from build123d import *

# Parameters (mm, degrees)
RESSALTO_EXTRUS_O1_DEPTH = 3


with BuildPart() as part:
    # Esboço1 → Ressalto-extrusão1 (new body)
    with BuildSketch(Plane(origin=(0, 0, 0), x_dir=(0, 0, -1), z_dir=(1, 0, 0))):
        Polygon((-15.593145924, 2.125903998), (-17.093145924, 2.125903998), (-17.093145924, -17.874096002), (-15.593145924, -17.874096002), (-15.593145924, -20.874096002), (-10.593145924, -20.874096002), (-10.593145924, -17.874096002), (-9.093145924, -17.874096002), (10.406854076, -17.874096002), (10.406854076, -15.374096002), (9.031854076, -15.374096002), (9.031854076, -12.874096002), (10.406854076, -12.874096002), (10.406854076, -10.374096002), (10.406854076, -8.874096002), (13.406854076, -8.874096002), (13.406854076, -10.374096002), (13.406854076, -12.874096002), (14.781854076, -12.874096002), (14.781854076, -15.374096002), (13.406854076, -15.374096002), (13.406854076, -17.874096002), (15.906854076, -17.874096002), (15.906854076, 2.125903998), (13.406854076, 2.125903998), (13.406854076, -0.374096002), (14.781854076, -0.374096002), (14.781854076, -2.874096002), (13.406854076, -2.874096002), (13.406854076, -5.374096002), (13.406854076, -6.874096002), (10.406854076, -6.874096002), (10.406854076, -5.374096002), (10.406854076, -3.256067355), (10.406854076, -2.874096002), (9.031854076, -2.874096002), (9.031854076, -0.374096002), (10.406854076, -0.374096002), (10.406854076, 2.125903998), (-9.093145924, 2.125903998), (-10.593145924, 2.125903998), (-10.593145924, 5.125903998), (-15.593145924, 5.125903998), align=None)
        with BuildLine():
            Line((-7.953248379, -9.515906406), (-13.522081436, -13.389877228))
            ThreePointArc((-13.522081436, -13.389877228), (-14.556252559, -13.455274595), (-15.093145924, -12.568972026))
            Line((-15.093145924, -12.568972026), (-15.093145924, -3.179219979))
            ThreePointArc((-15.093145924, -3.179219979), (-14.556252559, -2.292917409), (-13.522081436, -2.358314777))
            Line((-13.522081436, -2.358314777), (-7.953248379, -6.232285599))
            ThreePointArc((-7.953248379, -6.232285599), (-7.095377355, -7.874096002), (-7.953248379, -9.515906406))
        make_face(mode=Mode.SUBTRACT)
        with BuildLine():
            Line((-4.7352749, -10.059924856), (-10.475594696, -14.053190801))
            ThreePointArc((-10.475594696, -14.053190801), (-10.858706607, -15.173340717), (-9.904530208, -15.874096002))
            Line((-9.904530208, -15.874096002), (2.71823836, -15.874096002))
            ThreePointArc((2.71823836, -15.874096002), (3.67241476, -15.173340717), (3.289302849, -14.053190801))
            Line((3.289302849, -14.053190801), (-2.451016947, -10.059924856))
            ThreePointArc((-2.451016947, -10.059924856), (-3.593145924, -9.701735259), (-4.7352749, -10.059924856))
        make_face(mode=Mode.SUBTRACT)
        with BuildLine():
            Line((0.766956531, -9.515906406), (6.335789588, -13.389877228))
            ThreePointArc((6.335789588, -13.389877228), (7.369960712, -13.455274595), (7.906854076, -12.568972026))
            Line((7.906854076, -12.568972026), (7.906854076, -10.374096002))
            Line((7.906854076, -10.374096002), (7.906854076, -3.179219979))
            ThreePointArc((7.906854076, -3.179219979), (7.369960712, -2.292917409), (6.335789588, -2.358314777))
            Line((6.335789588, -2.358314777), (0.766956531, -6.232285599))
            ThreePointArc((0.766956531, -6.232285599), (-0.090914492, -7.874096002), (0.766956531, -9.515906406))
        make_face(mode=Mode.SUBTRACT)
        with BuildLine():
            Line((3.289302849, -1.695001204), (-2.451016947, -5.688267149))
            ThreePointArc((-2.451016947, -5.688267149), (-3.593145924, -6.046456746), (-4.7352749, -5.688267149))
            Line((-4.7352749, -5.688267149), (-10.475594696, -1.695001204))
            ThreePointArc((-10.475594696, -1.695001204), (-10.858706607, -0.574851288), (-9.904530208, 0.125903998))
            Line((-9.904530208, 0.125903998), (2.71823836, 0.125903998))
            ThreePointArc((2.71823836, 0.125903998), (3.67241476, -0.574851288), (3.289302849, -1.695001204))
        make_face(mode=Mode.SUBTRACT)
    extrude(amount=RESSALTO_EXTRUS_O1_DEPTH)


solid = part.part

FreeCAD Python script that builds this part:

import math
import FreeCAD as App
import Part
import Sketcher

V = App.Vector


def add_polygon(sketch, points):
    """Adds a closed chain of lines whose ends are joined by coincident constraints."""
    first, n = sketch.GeometryCount, len(points)
    for a, b in zip(points, points[1:] + points[:1]):
        sketch.addGeometry(Part.LineSegment(App.Vector(*a, 0), App.Vector(*b, 0)), False)
    for i in range(n):
        sketch.addConstraint(Sketcher.Constraint("Coincident", first + i, 2, first + (i + 1) % n, 1))

doc = App.newDocument("Part")
body = doc.addObject("PartDesign::Body", "Body")

# Sketch on YZ plane
sketch1 = body.newObject("Sketcher::SketchObject", "Sketch")
sketch1.AttachmentSupport = (doc.getObject("YZ_Plane"), [""])
sketch1.MapMode = "FlatFace"
add_polygon(sketch1, [(2.1, 15.6), (2.1, 17.1), (-17.9, 17.1), (-17.9, 15.6), (-20.9, 15.6), (-20.9, 10.6), (-17.9, 10.6), (-17.9, -10.4), (-15.4, -10.4), (-15.4, -9), (-12.9, -9), (-12.9, -10.4), (-8.9, -10.4), (-8.9, -13.4), (-12.9, -13.4), (-12.9, -14.8), (-15.4, -14.8), (-15.4, -13.4), (-17.9, -13.4), (-17.9, -15.9), (2.1, -15.9), (2.1, -13.4), (-0.4, -13.4), (-0.4, -14.8), (-2.9, -14.8), (-2.9, -13.4), (-6.9, -13.4), (-6.9, -10.4), (-2.9, -10.4), (-2.9, -9), (-0.4, -9), (-0.4, -10.4), (2.1, -10.4), (2.1, 10.6), (5.1, 10.6), (5.1, 15.6)])  # lines 0-35
sketch1.addGeometry(Part.ArcOfCircle(Part.Circle(V(-7.9, 9.1, 0), V(0, 0, 1), 2), math.radians(-145), math.radians(-35)), False)  # 36
sketch1.addGeometry(Part.LineSegment(V(-9.5, 8, 0), V(-13.4, 13.5, 0)), False)  # 37
sketch1.addGeometry(Part.ArcOfCircle(Part.Circle(V(-12.6, 14.1, 0), V(0, 0, 1), 1), math.radians(90), math.radians(215)), False)  # 38
sketch1.addGeometry(Part.LineSegment(V(-12.6, 15.1, 0), V(-3.2, 15.1, 0)), False)  # 39
sketch1.addGeometry(Part.ArcOfCircle(Part.Circle(V(-3.2, 14.1, 0), V(0, 0, 1), 1), math.radians(-35), math.radians(90)), False)  # 40
sketch1.addGeometry(Part.LineSegment(V(-2.4, 13.5, 0), V(-6.2, 8, 0)), False)  # 41
sketch1.addGeometry(Part.LineSegment(V(-14.1, 10.5, 0), V(-10.1, 4.7, 0)), False)  # 42
sketch1.addGeometry(Part.ArcOfCircle(Part.Circle(V(-11.7, 3.6, 0), V(0, 0, 1), 2), math.radians(-35), math.radians(35)), False)  # 43
sketch1.addGeometry(Part.LineSegment(V(-10.1, 2.5, 0), V(-14.1, -3.3, 0)), False)  # 44
sketch1.addGeometry(Part.ArcOfCircle(Part.Circle(V(-14.9, -2.7, 0), V(0, 0, 1), 1), math.radians(180), math.radians(325)), False)  # 45
sketch1.addGeometry(Part.LineSegment(V(-15.9, -2.7, 0), V(-15.9, 9.9, 0)), False)  # 46
sketch1.addGeometry(Part.ArcOfCircle(Part.Circle(V(-14.9, 9.9, 0), V(0, 0, 1), 1), math.radians(35), math.radians(180)), False)  # 47
sketch1.addGeometry(Part.LineSegment(V(-13.4, -6.3, 0), V(-9.5, -0.8, 0)), False)  # 48
sketch1.addGeometry(Part.ArcOfCircle(Part.Circle(V(-7.9, -1.9, 0), V(0, 0, 1), 2), math.radians(35), math.radians(145)), False)  # 49
sketch1.addGeometry(Part.LineSegment(V(-6.2, -0.8, 0), V(-2.4, -6.3, 0)), False)  # 50
sketch1.addGeometry(Part.ArcOfCircle(Part.Circle(V(-3.2, -6.9, 0), V(0, 0, 1), 1), math.radians(-90), math.radians(35)), False)  # 51
sketch1.addGeometry(Part.LineSegment(V(-3.2, -7.9, 0), V(-12.6, -7.9, 0)), False)  # 52
sketch1.addGeometry(Part.ArcOfCircle(Part.Circle(V(-12.6, -6.9, 0), V(0, 0, 1), 1), math.radians(145), math.radians(270)), False)  # 53
sketch1.addGeometry(Part.ArcOfCircle(Part.Circle(V(-0.9, -2.7, 0), V(0, 0, 1), 1), math.radians(-145), math.radians(0)), False)  # 54
sketch1.addGeometry(Part.LineSegment(V(-1.7, -3.3, 0), V(-5.7, 2.5, 0)), False)  # 55
sketch1.addGeometry(Part.ArcOfCircle(Part.Circle(V(-4, 3.6, 0), V(0, 0, 1), 2), math.radians(145), math.radians(215)), False)  # 56
sketch1.addGeometry(Part.LineSegment(V(-5.7, 4.7, 0), V(-1.7, 10.5, 0)), False)  # 57
sketch1.addGeometry(Part.ArcOfCircle(Part.Circle(V(-0.9, 9.9, 0), V(0, 0, 1), 1), math.radians(0), math.radians(145)), False)  # 58
sketch1.addGeometry(Part.LineSegment(V(0.1, 9.9, 0), V(0.1, -2.7, 0)), False)  # 59
sketch1.addConstraint([
    Sketcher.Constraint("Tangent", 36, 1, 37, 1),
    Sketcher.Constraint("Tangent", 37, 2, 38, 2),
    Sketcher.Constraint("Tangent", 38, 1, 39, 1),
    Sketcher.Constraint("Tangent", 39, 2, 40, 2),
    Sketcher.Constraint("Tangent", 40, 1, 41, 1),
    Sketcher.Constraint("Tangent", 41, 2, 36, 2),
    Sketcher.Constraint("Tangent", 42, 2, 43, 2),
    Sketcher.Constraint("Tangent", 43, 1, 44, 1),
    Sketcher.Constraint("Tangent", 44, 2, 45, 2),
    Sketcher.Constraint("Tangent", 45, 1, 46, 1),
    Sketcher.Constraint("Tangent", 46, 2, 47, 2),
    Sketcher.Constraint("Tangent", 47, 1, 42, 1),
    Sketcher.Constraint("Tangent", 48, 2, 49, 2),
    Sketcher.Constraint("Tangent", 49, 1, 50, 1),
    Sketcher.Constraint("Tangent", 50, 2, 51, 2),
    Sketcher.Constraint("Tangent", 51, 1, 52, 1),
    Sketcher.Constraint("Tangent", 52, 2, 53, 2),
    Sketcher.Constraint("Tangent", 53, 1, 48, 1),
    Sketcher.Constraint("Tangent", 54, 1, 55, 1),
    Sketcher.Constraint("Tangent", 55, 2, 56, 2),
    Sketcher.Constraint("Tangent", 56, 1, 57, 1),
    Sketcher.Constraint("Tangent", 57, 2, 58, 2),
    Sketcher.Constraint("Tangent", 58, 1, 59, 1),
    Sketcher.Constraint("Tangent", 59, 2, 54, 2),
    Sketcher.Constraint("Vertical", 0),
    Sketcher.Constraint("Horizontal", 1),
    Sketcher.Constraint("Vertical", 2),
    Sketcher.Constraint("Horizontal", 3),
    Sketcher.Constraint("Vertical", 4),
    Sketcher.Constraint("Horizontal", 5),
    Sketcher.Constraint("Vertical", 6),
    Sketcher.Constraint("Horizontal", 7),
    Sketcher.Constraint("Vertical", 8),
    Sketcher.Constraint("Horizontal", 9),
    Sketcher.Constraint("Vertical", 10),
    Sketcher.Constraint("Horizontal", 11),
    Sketcher.Constraint("Vertical", 12),
    Sketcher.Constraint("Horizontal", 13),
    Sketcher.Constraint("Vertical", 14),
    Sketcher.Constraint("Horizontal", 15),
    Sketcher.Constraint("Vertical", 16),
    Sketcher.Constraint("Horizontal", 17),
    Sketcher.Constraint("Vertical", 18),
    Sketcher.Constraint("Horizontal", 19),
    Sketcher.Constraint("Vertical", 20),
    Sketcher.Constraint("Horizontal", 21),
    Sketcher.Constraint("Vertical", 22),
    Sketcher.Constraint("Horizontal", 23),
    Sketcher.Constraint("Vertical", 24),
    Sketcher.Constraint("Horizontal", 25),
    Sketcher.Constraint("Vertical", 26),
    Sketcher.Constraint("Horizontal", 27),
    Sketcher.Constraint("Vertical", 28),
    Sketcher.Constraint("Horizontal", 29),
    Sketcher.Constraint("Vertical", 30),
    Sketcher.Constraint("Horizontal", 31),
    Sketcher.Constraint("Vertical", 32),
    Sketcher.Constraint("Horizontal", 33),
    Sketcher.Constraint("Vertical", 34),
    Sketcher.Constraint("Horizontal", 35),
    Sketcher.Constraint("Horizontal", 39),
    Sketcher.Constraint("Vertical", 46),
    Sketcher.Constraint("Horizontal", 52),
    Sketcher.Constraint("Vertical", 59),
    Sketcher.Constraint("Equal", 38, 40),
    Sketcher.Constraint("Equal", 36, 43),
    Sketcher.Constraint("Equal", 40, 45),
    Sketcher.Constraint("Equal", 45, 47),
    Sketcher.Constraint("Equal", 43, 49),
    Sketcher.Constraint("Equal", 47, 51),
    Sketcher.Constraint("Equal", 51, 53),
    Sketcher.Constraint("Equal", 53, 54),
    Sketcher.Constraint("Equal", 49, 56),
    Sketcher.Constraint("Equal", 54, 58),
    Sketcher.Constraint("Parallel", 37, 42),
    Sketcher.Constraint("Parallel", 41, 44),
    Sketcher.Constraint("Parallel", 44, 48),
    Sketcher.Constraint("Parallel", 42, 50),
    Sketcher.Constraint("Parallel", 50, 55),
    Sketcher.Constraint("Parallel", 48, 57),
    Sketcher.Constraint("Horizontal", 45, 3, 54, 3),
    Sketcher.Constraint("Horizontal", 43, 3, 56, 3),
    Sketcher.Constraint("Horizontal", 47, 3, 58, 3),
    Sketcher.Constraint("Horizontal", 7, 2, 10, 2),
    Sketcher.Constraint("Horizontal", 13, 2, 16, 2),
    Sketcher.Constraint("Horizontal", 17, 2, 20, 2),
    Sketcher.Constraint("Horizontal", 15, 2, 22, 2),
    Sketcher.Constraint("Horizontal", 21, 2, 24, 2),
    Sketcher.Constraint("Horizontal", 11, 2, 26, 2),
    Sketcher.Constraint("Horizontal", 9, 2, 28, 2),
    Sketcher.Constraint("Horizontal", 27, 2, 30, 2),
    Sketcher.Constraint("Horizontal", 5, 2, 32, 2),
    Sketcher.Constraint("Horizontal", 3, 2, 34, 2),
    Sketcher.Constraint("Vertical", 36, 3, 49, 3),
    Sketcher.Constraint("Vertical", 40, 3, 51, 3),
    Sketcher.Constraint("Vertical", 2, 2, 5, 2),
    Sketcher.Constraint("Vertical", 10, 2, 13, 2),
    Sketcher.Constraint("Vertical", 8, 2, 15, 2),
    Sketcher.Constraint("Vertical", 6, 2, 17, 2),
    Sketcher.Constraint("Vertical", 0, 2, 19, 2),
    Sketcher.Constraint("Vertical", 24, 2, 27, 2),
    Sketcher.Constraint("Vertical", 22, 2, 29, 2),
    Sketcher.Constraint("Vertical", 20, 2, 31, 2),
    Sketcher.Constraint("Equal", 7, 9),
    Sketcher.Constraint("Equal", 17, 21),
    Sketcher.Constraint("Equal", 21, 23),
    Sketcher.Constraint("Equal", 13, 25),
    Sketcher.Constraint("Equal", 5, 33),
    Sketcher.Constraint("Equal", 35, 12),
    Sketcher.Constraint("Equal", 10, 14),
    Sketcher.Constraint("Equal", 31, 18),
    Sketcher.Constraint("Radius", 36, 2.0),
    Sketcher.Constraint("Radius", 38, 1.0),
    Sketcher.Constraint("DistanceX", 1, 2, 1, 1, 20.0),
    Sketcher.Constraint("DistanceX", 3, 2, 3, 1, 3.0),
    Sketcher.Constraint("DistanceX", 11, 1, 11, 2, 4.0),
    Sketcher.Constraint("DistanceY", 4, 2, 4, 1, 5.0),
    Sketcher.Constraint("DistanceY", 6, 2, 6, 1, 21.0),
    Sketcher.Constraint("DistanceX", 7, 1, 7, 2, 2.5),
    Sketcher.Constraint("DistanceY", 0, 1, 0, 2, 1.5),
    Sketcher.Constraint("DistanceY", 8, 1, 8, 2, 1.375),
    Sketcher.Constraint("DistanceX", 54, 1, -1, 1, 1.695001),
    Sketcher.Constraint("DistanceY", 46, 1, 46, 2, 12.622769),
    Sketcher.Constraint("Distance", 37, 6.783771),
    Sketcher.Constraint("Distance", 42, 6.992671),
    Sketcher.Constraint("DistanceX", 40, 3, -1, 1, 3.17922),
    Sketcher.Constraint("DistanceY", 45, 3, -1, 1, 2.718238),
    Sketcher.Constraint("DistanceY", -1, 1, 36, 1, 7.953248),
    Sketcher.Constraint("DistanceX", 44, 2, -1, 1, 14.053191),
    Sketcher.Constraint("DistanceY", 50, 2, -1, 1, 6.33579),
    Sketcher.Constraint("DistanceX", -1, 1, 0, 2, 2.125904),
    Sketcher.Constraint("DistanceY", -1, 1, 0, 2, 17.093146),
])
pad1 = body.newObject("PartDesign::Pad", "Pad")
pad1.Profile = sketch1
pad1.Length = 3

doc.recompute()
